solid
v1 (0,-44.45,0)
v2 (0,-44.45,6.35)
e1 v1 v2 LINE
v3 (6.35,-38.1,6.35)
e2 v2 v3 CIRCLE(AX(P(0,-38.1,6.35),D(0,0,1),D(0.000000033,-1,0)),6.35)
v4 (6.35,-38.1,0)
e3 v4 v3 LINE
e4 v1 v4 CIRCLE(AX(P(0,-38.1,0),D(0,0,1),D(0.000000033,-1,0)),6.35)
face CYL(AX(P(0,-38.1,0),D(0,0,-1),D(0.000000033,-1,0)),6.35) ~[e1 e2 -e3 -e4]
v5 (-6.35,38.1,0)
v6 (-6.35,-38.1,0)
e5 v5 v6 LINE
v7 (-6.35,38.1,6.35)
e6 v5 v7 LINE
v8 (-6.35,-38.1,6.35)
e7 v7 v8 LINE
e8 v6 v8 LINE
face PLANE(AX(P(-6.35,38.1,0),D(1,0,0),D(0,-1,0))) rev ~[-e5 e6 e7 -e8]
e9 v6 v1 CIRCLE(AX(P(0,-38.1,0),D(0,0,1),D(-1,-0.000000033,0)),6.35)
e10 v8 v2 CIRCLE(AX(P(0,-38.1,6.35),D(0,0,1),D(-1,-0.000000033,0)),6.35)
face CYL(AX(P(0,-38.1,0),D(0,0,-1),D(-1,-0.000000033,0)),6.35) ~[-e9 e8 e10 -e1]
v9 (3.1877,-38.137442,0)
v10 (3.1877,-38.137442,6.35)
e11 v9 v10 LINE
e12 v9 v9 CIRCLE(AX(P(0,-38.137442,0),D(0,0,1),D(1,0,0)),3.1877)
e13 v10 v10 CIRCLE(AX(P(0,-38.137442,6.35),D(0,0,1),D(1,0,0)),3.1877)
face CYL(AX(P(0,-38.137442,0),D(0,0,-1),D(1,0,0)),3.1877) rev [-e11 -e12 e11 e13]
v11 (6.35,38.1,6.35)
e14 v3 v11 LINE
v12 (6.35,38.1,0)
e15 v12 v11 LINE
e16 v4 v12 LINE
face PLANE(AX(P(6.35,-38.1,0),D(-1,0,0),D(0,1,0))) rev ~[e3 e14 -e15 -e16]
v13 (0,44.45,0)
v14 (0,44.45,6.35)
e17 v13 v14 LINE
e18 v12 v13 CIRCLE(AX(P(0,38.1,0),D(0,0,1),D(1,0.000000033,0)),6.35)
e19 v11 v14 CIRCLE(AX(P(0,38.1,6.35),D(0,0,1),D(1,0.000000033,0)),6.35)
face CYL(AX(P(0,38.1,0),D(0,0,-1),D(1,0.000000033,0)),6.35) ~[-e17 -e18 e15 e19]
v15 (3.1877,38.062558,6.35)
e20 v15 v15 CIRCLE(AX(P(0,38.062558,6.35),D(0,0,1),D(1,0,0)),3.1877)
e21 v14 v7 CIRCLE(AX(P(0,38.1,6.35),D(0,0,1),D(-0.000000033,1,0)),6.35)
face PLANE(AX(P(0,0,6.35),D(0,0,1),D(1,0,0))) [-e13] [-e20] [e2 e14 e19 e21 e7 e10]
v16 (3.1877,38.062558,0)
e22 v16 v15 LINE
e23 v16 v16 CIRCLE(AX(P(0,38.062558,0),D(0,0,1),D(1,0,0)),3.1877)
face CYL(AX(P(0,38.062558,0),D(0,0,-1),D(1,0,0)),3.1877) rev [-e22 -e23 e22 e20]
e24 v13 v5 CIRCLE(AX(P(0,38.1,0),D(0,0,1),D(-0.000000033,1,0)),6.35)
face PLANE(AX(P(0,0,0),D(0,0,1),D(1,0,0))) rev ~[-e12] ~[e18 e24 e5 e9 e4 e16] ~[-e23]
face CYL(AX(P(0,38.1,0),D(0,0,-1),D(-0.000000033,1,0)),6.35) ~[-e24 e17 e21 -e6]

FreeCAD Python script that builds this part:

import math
import FreeCAD as App
import Part
import Sketcher
from FreeCAD import Vector
Q = App.Units.Quantity

doc = App.newDocument("Part")
body = doc.addObject("PartDesign::Body", "Body")

# Sketch on XY plane
sketch1 = doc.addObject("Sketcher::SketchObject", "Sketch")
body.addObject(sketch1)
sketch1.AttachmentSupport = (doc.XY_Plane, [""])
sketch1.MapMode = "FlatFace"
sketch1.addGeometry([
    Part.LineSegment(Vector(6.3, -38.1, 0), Vector(6.3, 38.1, 0)),  # 0
    Part.ArcOfCircle(Part.Circle(Vector(0, 38.1, 0), Vector(0, 0, 1), 6.4), math.radians(0), math.radians(90)),  # 1
    Part.ArcOfCircle(Part.Circle(Vector(0, 38.1, 0), Vector(0, 0, 1), 6.4), math.radians(90), math.radians(180)),  # 2
    Part.LineSegment(Vector(-6.3, 38.1, 0), Vector(-6.3, -38.1, 0)),  # 3
    Part.ArcOfCircle(Part.Circle(Vector(0, -38.1, 0), Vector(0, 0, 1), 6.4), math.radians(-180), math.radians(-90)),  # 4
    Part.ArcOfCircle(Part.Circle(Vector(0, -38.1, 0), Vector(0, 0, 1), 6.4), math.radians(-90), math.radians(0)),  # 5
    Part.Circle(Vector(0, -38.1, 0), Vector(0, 0, 1), 3.2),  # 6
    Part.Circle(Vector(0, 38.1, 0), Vector(0, 0, 1), 3.2),  # 7
], False)
sketch1.addConstraint([
    Sketcher.Constraint("Tangent", 0, 2, 1, 1),
    Sketcher.Constraint("Tangent", 1, 2, 2, 1),
    Sketcher.Constraint("Tangent", 2, 2, 3, 1),
    Sketcher.Constraint("Tangent", 3, 2, 4, 1),
    Sketcher.Constraint("Tangent", 4, 2, 5, 1),
    Sketcher.Constraint("Tangent", 5, 2, 0, 1),
    Sketcher.Constraint("Vertical", 0),
    Sketcher.Constraint("Vertical", 3),
    Sketcher.Constraint("Equal", 1, 2),
    Sketcher.Constraint("Equal", 2, 4),
    Sketcher.Constraint("Equal", 6, 7),
    Sketcher.Constraint("Symmetric", 1, 3, 4, 3, -1, 1),
    Sketcher.Constraint("PointOnObject", 6, 3, -2),
    Sketcher.Constraint("PointOnObject", 7, 3, -2),
    Sketcher.Constraint("PointOnObject", 1, 2, -2),
    Sketcher.Constraint("PointOnObject", 4, 2, -2),
    Sketcher.Constraint("DistanceY", 0, 1, 0, 2, Q("3 in")),
    Sketcher.Constraint("Radius", 1, Q("0.25 in")),
    Sketcher.Constraint("Diameter", 6, Q("0.251 in")),
    Sketcher.Constraint("DistanceY", 6, 3, 7, 3, Q("3 in")),
    Sketcher.Constraint("DistanceY", -1, 1, 7, 3, Q("38.062558 mm")),
])
pad1 = doc.addObject("PartDesign::Pad", "Pad")
body.addObject(pad1)
pad1.Profile = sketch1
pad1.Length = Q("0.25 in")

doc.recompute()
